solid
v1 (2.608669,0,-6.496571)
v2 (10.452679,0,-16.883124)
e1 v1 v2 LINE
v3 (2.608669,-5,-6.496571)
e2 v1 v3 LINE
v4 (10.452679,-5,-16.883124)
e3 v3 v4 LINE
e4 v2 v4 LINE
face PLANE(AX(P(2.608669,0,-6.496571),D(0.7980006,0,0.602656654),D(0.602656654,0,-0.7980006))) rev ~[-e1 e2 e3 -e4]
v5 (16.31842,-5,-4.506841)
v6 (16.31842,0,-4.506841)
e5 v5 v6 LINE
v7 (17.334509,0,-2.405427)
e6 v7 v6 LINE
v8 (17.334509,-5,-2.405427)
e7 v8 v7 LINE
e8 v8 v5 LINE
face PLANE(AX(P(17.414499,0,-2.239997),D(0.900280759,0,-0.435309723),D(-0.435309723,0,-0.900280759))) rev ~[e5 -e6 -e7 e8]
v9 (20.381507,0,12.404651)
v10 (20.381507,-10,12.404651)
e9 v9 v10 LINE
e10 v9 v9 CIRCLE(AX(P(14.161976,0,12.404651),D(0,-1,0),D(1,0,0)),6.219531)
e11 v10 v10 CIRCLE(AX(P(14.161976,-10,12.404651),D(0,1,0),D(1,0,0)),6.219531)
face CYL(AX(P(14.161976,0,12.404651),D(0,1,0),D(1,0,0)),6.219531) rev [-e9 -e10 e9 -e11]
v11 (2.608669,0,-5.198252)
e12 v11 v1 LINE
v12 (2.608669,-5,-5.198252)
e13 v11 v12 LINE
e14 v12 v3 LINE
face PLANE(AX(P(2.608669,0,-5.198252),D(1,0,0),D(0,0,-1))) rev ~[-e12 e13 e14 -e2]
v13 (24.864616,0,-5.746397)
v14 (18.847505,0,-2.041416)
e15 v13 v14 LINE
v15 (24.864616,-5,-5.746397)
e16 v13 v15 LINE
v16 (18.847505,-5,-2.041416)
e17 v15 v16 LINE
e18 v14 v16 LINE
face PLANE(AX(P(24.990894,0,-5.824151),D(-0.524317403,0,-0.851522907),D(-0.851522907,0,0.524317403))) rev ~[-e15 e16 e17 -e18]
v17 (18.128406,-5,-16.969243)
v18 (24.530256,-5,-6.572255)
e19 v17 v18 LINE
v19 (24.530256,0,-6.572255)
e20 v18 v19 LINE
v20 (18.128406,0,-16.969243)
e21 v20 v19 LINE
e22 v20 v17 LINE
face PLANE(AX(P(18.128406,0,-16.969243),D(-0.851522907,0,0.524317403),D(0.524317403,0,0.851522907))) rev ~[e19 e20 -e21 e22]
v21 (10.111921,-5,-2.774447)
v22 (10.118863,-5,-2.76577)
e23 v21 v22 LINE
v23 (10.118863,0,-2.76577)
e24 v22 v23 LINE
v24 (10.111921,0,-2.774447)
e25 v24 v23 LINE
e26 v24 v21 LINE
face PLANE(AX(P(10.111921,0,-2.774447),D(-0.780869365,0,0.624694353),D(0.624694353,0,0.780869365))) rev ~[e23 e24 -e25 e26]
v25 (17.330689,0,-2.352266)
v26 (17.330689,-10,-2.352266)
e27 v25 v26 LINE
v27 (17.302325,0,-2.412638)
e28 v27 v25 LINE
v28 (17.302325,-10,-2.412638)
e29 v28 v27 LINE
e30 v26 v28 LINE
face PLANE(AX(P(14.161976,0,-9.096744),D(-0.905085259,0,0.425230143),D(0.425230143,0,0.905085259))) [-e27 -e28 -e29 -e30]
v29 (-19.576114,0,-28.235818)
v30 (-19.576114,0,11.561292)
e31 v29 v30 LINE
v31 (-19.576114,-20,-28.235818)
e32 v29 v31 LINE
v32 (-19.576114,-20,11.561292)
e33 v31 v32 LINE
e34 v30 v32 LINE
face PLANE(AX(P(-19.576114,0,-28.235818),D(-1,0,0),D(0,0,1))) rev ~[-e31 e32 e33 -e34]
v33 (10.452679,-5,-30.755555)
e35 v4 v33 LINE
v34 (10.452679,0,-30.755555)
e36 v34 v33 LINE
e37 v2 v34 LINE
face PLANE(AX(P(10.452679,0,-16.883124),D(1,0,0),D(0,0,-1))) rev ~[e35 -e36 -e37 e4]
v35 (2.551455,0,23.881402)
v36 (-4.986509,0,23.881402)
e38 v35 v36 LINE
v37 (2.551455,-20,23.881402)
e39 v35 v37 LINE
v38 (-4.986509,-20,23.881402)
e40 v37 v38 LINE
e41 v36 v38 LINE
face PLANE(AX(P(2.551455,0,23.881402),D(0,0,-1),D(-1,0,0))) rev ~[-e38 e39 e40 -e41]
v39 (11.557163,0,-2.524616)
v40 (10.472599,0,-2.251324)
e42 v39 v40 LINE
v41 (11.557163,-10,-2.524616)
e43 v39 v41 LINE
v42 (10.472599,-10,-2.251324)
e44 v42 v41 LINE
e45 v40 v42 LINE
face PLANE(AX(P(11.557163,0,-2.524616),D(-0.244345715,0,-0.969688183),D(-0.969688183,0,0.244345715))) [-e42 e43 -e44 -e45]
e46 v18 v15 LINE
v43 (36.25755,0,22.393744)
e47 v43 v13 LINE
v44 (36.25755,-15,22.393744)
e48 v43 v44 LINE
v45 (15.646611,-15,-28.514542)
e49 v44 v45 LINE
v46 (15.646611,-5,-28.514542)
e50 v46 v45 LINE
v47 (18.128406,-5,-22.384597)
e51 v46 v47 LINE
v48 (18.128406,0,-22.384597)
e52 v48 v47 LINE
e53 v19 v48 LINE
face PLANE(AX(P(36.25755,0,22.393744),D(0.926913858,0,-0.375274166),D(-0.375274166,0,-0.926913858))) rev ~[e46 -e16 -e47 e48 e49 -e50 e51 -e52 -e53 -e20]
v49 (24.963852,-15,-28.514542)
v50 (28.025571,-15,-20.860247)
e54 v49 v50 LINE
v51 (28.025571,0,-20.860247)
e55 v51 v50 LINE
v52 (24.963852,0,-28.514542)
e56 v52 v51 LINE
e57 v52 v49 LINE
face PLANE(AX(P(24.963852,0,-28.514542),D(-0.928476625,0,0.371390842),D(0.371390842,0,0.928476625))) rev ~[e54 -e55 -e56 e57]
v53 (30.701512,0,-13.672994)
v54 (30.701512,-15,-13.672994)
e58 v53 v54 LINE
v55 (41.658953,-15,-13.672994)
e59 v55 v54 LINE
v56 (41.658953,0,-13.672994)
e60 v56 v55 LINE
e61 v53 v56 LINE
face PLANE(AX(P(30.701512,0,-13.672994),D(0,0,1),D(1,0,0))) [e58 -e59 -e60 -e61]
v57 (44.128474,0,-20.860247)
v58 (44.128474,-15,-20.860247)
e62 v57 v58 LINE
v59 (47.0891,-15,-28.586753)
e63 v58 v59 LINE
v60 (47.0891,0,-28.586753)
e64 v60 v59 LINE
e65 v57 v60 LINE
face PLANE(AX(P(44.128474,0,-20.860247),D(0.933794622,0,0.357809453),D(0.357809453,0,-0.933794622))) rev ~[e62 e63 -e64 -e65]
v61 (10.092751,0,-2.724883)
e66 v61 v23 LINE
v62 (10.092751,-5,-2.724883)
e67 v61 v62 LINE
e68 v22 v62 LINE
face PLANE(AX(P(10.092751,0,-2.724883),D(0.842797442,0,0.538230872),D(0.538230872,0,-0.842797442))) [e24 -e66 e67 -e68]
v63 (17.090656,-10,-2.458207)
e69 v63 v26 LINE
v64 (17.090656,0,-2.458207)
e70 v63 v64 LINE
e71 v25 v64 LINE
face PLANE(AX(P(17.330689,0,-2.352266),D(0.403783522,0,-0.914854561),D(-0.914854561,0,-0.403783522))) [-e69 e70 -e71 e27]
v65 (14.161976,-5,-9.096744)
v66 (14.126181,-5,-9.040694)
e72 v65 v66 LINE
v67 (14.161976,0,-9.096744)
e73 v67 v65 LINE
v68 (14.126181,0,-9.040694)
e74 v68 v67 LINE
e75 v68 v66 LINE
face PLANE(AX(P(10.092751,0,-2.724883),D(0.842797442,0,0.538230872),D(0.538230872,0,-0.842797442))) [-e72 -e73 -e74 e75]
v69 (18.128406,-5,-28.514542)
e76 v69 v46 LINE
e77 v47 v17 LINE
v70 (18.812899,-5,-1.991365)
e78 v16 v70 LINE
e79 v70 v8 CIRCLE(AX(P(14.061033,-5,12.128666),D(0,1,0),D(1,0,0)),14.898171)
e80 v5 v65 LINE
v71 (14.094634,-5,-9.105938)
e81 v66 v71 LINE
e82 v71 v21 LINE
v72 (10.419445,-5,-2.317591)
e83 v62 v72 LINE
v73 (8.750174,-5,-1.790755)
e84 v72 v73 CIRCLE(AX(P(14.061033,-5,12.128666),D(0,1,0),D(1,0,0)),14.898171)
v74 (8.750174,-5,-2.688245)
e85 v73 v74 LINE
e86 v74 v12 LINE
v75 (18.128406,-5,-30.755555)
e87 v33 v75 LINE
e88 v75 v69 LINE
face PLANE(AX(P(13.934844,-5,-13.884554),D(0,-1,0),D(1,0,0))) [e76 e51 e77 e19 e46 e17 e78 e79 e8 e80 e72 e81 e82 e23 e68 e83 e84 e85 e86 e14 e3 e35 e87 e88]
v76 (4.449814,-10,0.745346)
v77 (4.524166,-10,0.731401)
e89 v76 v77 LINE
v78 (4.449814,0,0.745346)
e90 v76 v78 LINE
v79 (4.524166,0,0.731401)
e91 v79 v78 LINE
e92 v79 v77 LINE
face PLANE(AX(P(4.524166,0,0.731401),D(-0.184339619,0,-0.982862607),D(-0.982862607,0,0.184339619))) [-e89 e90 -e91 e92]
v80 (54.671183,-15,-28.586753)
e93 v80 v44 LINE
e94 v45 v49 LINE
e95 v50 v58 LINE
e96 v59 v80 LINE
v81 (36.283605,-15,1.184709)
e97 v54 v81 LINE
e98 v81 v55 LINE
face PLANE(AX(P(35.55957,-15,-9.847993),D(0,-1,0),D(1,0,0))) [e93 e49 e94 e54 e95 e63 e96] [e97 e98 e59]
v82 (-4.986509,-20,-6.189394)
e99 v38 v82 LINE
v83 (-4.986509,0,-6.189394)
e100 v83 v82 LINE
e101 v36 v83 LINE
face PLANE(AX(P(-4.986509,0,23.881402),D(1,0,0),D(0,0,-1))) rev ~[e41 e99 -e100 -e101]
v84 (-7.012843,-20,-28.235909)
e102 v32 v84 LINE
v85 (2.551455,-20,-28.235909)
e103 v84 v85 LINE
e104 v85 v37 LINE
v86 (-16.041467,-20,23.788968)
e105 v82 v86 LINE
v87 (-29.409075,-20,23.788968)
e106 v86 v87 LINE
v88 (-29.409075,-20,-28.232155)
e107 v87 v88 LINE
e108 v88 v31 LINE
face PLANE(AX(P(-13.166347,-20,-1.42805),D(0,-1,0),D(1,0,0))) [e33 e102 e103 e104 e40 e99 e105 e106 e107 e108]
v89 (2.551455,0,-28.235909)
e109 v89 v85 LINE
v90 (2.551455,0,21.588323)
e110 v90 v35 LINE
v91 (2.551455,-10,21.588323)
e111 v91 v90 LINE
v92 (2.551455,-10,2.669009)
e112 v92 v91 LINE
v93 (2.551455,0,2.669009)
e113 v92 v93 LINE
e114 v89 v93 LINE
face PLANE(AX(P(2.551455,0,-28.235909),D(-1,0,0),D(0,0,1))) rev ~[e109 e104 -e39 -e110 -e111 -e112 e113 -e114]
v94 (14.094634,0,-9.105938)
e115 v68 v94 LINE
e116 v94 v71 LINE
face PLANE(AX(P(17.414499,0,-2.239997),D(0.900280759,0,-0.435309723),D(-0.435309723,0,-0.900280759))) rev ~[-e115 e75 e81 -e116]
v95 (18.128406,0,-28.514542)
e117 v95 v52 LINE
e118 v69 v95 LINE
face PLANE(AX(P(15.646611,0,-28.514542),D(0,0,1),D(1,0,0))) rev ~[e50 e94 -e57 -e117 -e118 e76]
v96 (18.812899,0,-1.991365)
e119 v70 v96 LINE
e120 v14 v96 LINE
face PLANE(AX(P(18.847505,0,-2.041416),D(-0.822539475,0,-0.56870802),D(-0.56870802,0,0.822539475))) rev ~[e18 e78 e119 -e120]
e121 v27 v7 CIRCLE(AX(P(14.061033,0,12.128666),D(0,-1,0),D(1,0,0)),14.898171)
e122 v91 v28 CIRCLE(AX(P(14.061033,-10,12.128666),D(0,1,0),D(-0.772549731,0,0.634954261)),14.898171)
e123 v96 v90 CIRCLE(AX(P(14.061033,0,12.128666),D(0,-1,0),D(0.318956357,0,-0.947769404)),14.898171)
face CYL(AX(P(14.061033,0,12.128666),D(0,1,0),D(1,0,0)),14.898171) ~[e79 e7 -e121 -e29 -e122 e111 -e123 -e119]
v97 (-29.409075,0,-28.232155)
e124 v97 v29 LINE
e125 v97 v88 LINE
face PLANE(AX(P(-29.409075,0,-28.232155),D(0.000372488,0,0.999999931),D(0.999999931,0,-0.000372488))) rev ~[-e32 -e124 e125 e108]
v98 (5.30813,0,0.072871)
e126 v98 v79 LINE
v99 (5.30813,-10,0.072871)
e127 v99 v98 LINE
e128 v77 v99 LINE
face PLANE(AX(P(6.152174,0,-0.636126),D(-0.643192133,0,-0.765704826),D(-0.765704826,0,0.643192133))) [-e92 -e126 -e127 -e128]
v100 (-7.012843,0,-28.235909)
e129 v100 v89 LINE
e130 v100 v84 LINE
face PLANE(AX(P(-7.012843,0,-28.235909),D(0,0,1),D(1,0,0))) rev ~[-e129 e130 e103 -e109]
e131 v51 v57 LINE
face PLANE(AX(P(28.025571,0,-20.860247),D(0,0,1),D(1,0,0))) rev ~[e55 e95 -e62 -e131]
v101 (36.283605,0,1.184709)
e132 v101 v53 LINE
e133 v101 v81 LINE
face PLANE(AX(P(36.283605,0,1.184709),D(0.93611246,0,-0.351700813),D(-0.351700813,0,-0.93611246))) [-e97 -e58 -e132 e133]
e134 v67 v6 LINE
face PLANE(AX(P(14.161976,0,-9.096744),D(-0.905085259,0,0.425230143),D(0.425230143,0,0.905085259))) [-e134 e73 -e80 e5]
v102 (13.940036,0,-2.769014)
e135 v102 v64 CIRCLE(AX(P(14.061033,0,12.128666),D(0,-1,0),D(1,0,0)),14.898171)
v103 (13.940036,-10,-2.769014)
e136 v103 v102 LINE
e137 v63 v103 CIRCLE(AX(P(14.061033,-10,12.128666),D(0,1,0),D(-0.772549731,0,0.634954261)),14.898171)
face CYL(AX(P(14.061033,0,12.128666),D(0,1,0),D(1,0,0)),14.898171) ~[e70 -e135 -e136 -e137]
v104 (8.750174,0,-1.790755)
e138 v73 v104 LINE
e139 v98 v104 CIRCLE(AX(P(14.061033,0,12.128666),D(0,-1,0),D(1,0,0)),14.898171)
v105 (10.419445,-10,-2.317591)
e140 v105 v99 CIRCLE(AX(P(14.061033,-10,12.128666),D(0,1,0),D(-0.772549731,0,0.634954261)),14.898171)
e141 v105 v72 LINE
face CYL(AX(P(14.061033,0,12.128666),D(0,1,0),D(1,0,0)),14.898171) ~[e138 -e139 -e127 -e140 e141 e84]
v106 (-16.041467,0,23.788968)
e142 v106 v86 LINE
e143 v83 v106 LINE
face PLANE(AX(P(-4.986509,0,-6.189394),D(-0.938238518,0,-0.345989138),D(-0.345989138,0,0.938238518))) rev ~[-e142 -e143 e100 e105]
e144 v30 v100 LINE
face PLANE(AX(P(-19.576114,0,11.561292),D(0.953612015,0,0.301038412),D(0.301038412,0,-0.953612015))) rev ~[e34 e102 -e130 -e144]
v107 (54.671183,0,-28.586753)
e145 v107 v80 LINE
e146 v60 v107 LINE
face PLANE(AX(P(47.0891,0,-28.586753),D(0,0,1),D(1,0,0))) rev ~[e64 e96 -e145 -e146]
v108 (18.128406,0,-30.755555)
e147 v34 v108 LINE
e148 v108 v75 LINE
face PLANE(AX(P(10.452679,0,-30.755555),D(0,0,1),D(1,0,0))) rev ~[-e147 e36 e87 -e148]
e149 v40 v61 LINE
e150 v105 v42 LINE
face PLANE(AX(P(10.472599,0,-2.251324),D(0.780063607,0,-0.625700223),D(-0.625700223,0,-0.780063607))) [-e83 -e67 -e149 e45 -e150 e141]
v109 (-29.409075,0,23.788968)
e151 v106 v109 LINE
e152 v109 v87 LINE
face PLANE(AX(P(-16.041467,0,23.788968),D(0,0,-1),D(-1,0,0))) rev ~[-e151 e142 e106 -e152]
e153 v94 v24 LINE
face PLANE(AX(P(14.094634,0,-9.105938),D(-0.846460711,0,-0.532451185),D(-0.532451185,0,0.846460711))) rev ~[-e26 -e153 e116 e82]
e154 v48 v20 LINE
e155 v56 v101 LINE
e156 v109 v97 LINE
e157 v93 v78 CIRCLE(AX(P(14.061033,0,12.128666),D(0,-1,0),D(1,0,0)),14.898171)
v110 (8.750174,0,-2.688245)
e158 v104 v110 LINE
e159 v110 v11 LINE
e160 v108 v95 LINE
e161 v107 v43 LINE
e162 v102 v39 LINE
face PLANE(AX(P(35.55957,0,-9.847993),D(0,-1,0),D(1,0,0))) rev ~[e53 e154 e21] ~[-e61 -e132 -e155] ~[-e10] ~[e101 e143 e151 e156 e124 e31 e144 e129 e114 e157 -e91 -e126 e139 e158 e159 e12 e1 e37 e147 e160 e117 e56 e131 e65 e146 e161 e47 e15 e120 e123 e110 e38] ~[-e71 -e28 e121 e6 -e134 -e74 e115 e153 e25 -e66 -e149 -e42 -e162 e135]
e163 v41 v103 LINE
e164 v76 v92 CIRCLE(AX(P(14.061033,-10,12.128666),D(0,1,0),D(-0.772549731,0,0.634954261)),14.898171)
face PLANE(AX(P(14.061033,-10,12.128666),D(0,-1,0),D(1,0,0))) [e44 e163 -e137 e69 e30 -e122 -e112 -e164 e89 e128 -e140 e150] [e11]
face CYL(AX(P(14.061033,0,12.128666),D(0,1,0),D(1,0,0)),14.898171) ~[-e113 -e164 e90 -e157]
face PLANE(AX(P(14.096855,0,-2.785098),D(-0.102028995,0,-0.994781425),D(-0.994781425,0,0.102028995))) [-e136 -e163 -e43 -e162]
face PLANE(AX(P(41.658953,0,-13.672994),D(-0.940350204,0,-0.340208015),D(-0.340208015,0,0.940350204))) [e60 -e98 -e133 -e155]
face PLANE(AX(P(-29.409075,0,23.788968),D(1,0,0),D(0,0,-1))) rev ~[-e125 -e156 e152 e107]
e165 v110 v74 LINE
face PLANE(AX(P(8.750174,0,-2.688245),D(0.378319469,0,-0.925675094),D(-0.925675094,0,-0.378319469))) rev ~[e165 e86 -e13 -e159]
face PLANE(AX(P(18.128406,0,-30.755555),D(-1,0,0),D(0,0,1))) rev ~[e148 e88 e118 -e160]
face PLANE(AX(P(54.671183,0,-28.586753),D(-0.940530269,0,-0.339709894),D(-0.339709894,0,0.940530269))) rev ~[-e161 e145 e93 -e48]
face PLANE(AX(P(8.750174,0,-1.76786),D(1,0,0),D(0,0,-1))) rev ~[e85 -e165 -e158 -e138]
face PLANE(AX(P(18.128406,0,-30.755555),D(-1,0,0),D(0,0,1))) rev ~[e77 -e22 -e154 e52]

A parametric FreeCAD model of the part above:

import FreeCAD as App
import Part
import Sketcher
Q = App.Units.Quantity


def add_polygon(sketch, points):
    """Adds a closed chain of lines whose ends are joined by coincident constraints."""
    first, n = sketch.GeometryCount, len(points)
    for a, b in zip(points, points[1:] + points[:1]):
        sketch.addGeometry(Part.LineSegment(App.Vector(*a, 0), App.Vector(*b, 0)), False)
    for i in range(n):
        sketch.addConstraint(Sketcher.Constraint("Coincident", first + i, 2, first + (i + 1) % n, 1))

doc = App.newDocument("Part")
params = doc.addObject("Spreadsheet::Sheet", "Params")
for row, (alias, value) in enumerate([
    ("pad1_length", "20 mm"),
    ("pad2_length", "5 mm"),
    ("pad3_length", "10 mm"),
    ("pad4_length", "15 mm"),
], start=1):
    params.set(f"A{row}", alias)
    params.set(f"B{row}", "=" + value)
    params.setAlias(f"B{row}", alias)

body = doc.addObject("PartDesign::Body", "Body")

# Sketch on XZ plane
sketch1 = body.newObject("Sketcher::SketchObject", "Sketch")
sketch1.AttachmentSupport = (doc.getObject("XZ_Plane"), [""])
sketch1.MapMode = "FlatFace"
add_polygon(sketch1, [(-29, 24), (-29, -28), (-20, -28), (-20, 12), (-7, -28), (3, -28), (3, 24), (-5, 24), (-5, -6), (-16, 24)])  # lines 0-9
sketch1.addConstraint([
    Sketcher.Constraint("Vertical", 0),
    Sketcher.Constraint("Vertical", 2),
    Sketcher.Constraint("Horizontal", 4),
    Sketcher.Constraint("Vertical", 5),
    Sketcher.Constraint("Horizontal", 6),
    Sketcher.Constraint("Vertical", 7),
    Sketcher.Constraint("Horizontal", 9),
    Sketcher.Constraint("Angle", 3, Q("-72.480017 deg")),
    Sketcher.Constraint("DistanceX", 9, 2, 9, 1, 13.367608),
    Sketcher.Constraint("DistanceY", 2, 1, 2, 2, 39.79711),
    Sketcher.Constraint("DistanceY", 5, 1, 5, 2, 52.11731),
    Sketcher.Constraint("DistanceY", -1, 1, 5, 2, 23.881402),
    Sketcher.Constraint("DistanceY", 3, 2, 2, 2, 39.797201),
    Sketcher.Constraint("Distance", 8, 31.951749),
    Sketcher.Constraint("DistanceX", 4, 1, 4, 2, 9.564298),
    Sketcher.Constraint("DistanceX", 6, 2, 6, 1, 7.537964),
    Sketcher.Constraint("DistanceY", 0, 2, 0, 1, 52.021123),
    Sketcher.Constraint("DistanceY", 7, 2, 7, 1, 30.070796),
    Sketcher.Constraint("DistanceX", 6, 2, -1, 1, 4.986509),
    Sketcher.Constraint("DistanceY", -1, 1, 8, 2, 23.788968),
])
pad1 = body.newObject("PartDesign::Pad", "Pad")
pad1.Profile = sketch1
pad1.setExpression("Length", "Params.pad1_length")
body2 = doc.addObject("PartDesign::Body", "Body001")

# Sketch on XZ plane
sketch2 = body2.newObject("Sketcher::SketchObject", "Sketch001")
sketch2.AttachmentSupport = (doc.getObject("XZ_Plane001"), [""])
sketch2.MapMode = "FlatFace"
add_polygon(sketch2, [(10.52, -2.26), (8.75, -1.77), (8.75, -2.69), (2.61, -5.2), (2.61, -6.5), (10.45, -16.88), (10.45, -30.76), (18.13, -30.76), (18.13, -16.97), (24.99, -5.82), (18.85, -2.04), (18.25, -1.18), (17.19, -1.91), (17.41, -2.24), (14.09, -9.11), (10.11, -2.77)])  # lines 0-15
sketch2.addConstraint([
    Sketcher.Constraint("Vertical", 1),
    Sketcher.Constraint("Vertical", 3),
    Sketcher.Constraint("Vertical", 5),
    Sketcher.Constraint("Horizontal", 6),
    Sketcher.Constraint("Vertical", 7),
    Sketcher.Constraint("Perpendicular", 8, 9),
    Sketcher.Constraint("Perpendicular", 10, 11),
    Sketcher.Constraint("Perpendicular", 11, 12),
    Sketcher.Constraint("Distance", 0, 1.838399),
    Sketcher.Constraint("DistanceY", 3, 2, 3, 1, 1.298319),
    Sketcher.Constraint("DistanceY", 5, 2, 5, 1, 13.872432),
    Sketcher.Constraint("DistanceX", -1, 1, 12, 2, 17.414499),
    Sketcher.Constraint("DistanceY", 8, 2, 2, 2, 0.625899),
    Sketcher.Constraint("DistanceX", 7, 2, 9, 2, 0.719098),
    Sketcher.Constraint("DistanceY", 14, 2, 1, 2, 0.086202),
    Sketcher.Constraint("Distance", 4, 13.01572),
    Sketcher.Constraint("Distance", 9, 7.214591),
    Sketcher.Constraint("Distance", 10, 1.049909),
    Sketcher.Constraint("Distance", 11, 1.291639),
    Sketcher.Constraint("Distance", 12, 0.398288),
    Sketcher.Constraint("Distance", 14, 7.479958),
    Sketcher.Constraint("DistanceX", 6, 1, 6, 2, 7.675727),
    Sketcher.Constraint("DistanceY", 1, 2, 1, 1, 0.920385),
    Sketcher.Constraint("DistanceY", 7, 1, 7, 2, 13.786312),
    Sketcher.Constraint("DistanceY", 0, 2, -1, 1, 1.76786),
    Sketcher.Constraint("DistanceX", -1, 1, 2, 2, 2.608669),
    Sketcher.Constraint("DistanceY", 3, 2, -1, 1, 6.496571),
    Sketcher.Constraint("DistanceX", -1, 1, 4, 2, 10.452679),
    Sketcher.Constraint("DistanceX", -1, 1, 14, 2, 10.111921),
    Sketcher.Constraint("DistanceX", 1, 2, 8, 2, 16.24072),
    Sketcher.Constraint("DistanceY", 13, 2, 12, 2, 6.865941),
    Sketcher.Constraint("DistanceX", 1, 2, 15, 2, 1.77023),
])
pad2 = body2.newObject("PartDesign::Pad", "Pad001")
pad2.Profile = sketch2
pad2.setExpression("Length", "Params.pad2_length")
body.AllowCompound = True
doc.recompute()

boolean = body.newObject("PartDesign::Boolean", "Boolean")
boolean.Type = "Fuse"
boolean.addObjects([body2])

# Sketch on XZ plane
sketch3 = body.newObject("Sketcher::SketchObject", "Sketch002")
sketch3.AttachmentSupport = (doc.getObject("XZ_Plane"), [""])
sketch3.MapMode = "FlatFace"
sketch3.addGeometry(Part.Circle(App.Vector(14, 12, 0), App.Vector(0, 0, 1), 15), False)
sketch3.addConstraint([
    Sketcher.Constraint("Diameter", 0, 29.796342),
    Sketcher.Constraint("DistanceX", -1, 1, 0, 3, 14.061033),
    Sketcher.Constraint("DistanceY", -1, 1, 0, 3, 12.128666),
])
pad3 = body.newObject("PartDesign::Pad", "Pad002")
pad3.Profile = sketch3
pad3.setExpression("Length", "Params.pad3_length")

# Sketch on XZ plane
sketch4 = body.newObject("Sketcher::SketchObject", "Sketch003")
sketch4.AttachmentSupport = (doc.getObject("XZ_Plane"), [""])
sketch4.MapMode = "FlatFace"
add_polygon(sketch4, [(55, -29), (36, 22), (16, -29), (25, -29), (28, -21), (44, -21), (47, -29)])  # lines 0-6
sketch4.addConstraint([
    Sketcher.Constraint("Horizontal", 2),
    Sketcher.Constraint("Horizontal", 4),
    Sketcher.Constraint("Horizontal", 6),
    Sketcher.Constraint("DistanceX", 2, 1, 2, 2, 9.31724),
    Sketcher.Constraint("DistanceX", -1, 1, 5, 2, 47.0891),
    Sketcher.Constraint("DistanceX", 2, 2, 0, 2, 11.293698),
    Sketcher.Constraint("Distance", 1, 54.922349),
    Sketcher.Constraint("Distance", 5, 8.274309),
    Sketcher.Constraint("DistanceX", 4, 1, 4, 2, 16.102903),
    Sketcher.Constraint("DistanceX", 6, 1, 6, 2, 7.582083),
    Sketcher.Constraint("DistanceX", -1, 1, 0, 2, 36.25755),
    Sketcher.Constraint("DistanceY", 1, 2, -1, 1, 28.514542),
    Sketcher.Constraint("DistanceX", -1, 1, 3, 2, 28.025571),
    Sketcher.Constraint("DistanceY", 3, 2, 0, 2, 43.253992),
])
pad4 = body.newObject("PartDesign::Pad", "Pad003")
pad4.Profile = sketch4
pad4.setExpression("Length", "Params.pad4_length")

# Sketch on XZ plane
sketch5 = body.newObject("Sketcher::SketchObject", "Sketch004")
sketch5.AttachmentSupport = (doc.getObject("XZ_Plane"), [""])
sketch5.MapMode = "FlatFace"
add_polygon(sketch5, [(10.47, -2.25), (10.09, -2.72), (14.16, -9.1), (17.33, -2.35), (16.35, -2.79), (14.1, -2.79), (11.56, -2.52)])  # lines 0-6
sketch5.addGeometry(Part.Circle(App.Vector(14.16, 12.4, 0), App.Vector(0, 0, 1), 6.22), False)  # 7
add_polygon(sketch5, [(4.52, 0.73), (4.26, 0.78), (4.26, -4.42), (8.73, -2.63), (8.73, -1.81), (7.98, -1.61), (6.15, -0.64)])  # lines 8-14
add_polygon(sketch5, [(30.7, -13.67), (41.66, -13.67), (36.28, 1.18)])  # lines 15-17
sketch5.addConstraint([
    Sketcher.Constraint("Horizontal", 4),
    Sketcher.Constraint("Vertical", 9),
    Sketcher.Constraint("Vertical", 11),
    Sketcher.Constraint("Horizontal", 15),
    Sketcher.Constraint("Vertical", 7, 3, 1, 2),
    Sketcher.Constraint("Diameter", 7, 12.439062),
    Sketcher.Constraint("DistanceX", 15, 1, 15, 2, 10.95744),
    Sketcher.Constraint("DistanceY", 11, 1, 11, 2, 0.825969),
    Sketcher.Constraint("DistanceX", -1, 1, 6, 2, 10.472599),
    Sketcher.Constraint("DistanceY", -1, 1, 14, 2, 0.731401),
    Sketcher.Constraint("DistanceX", 8, 2, 14, 2, 0.263599),
    Sketcher.Constraint("Distance", 1, 7.560372),
    Sketcher.Constraint("Distance", 2, 7.451761),
    Sketcher.Constraint("Distance", 3, 1.071941),
    Sketcher.Constraint("Distance", 12, 0.781449),
    Sketcher.Constraint("Distance", 13, 2.068532),
    Sketcher.Constraint("Distance", 16, 15.80018),
    Sketcher.Constraint("DistanceX", 4, 2, 4, 1, 2.253164),
    Sketcher.Constraint("DistanceY", 9, 2, 9, 1, 5.205785),
    Sketcher.Constraint("DistanceY", -1, 1, 7, 3, 12.404651),
    Sketcher.Constraint("DistanceX", -1, 1, 0, 2, 10.092751),
    Sketcher.Constraint("DistanceX", -1, 1, 2, 2, 17.330689),
    Sketcher.Constraint("DistanceX", -1, 1, 3, 2, 16.35002),
    Sketcher.Constraint("DistanceY", -1, 1, 8, 2, 0.78084),
    Sketcher.Constraint("DistanceX", -1, 1, 10, 2, 8.732319),
    Sketcher.Constraint("DistanceY", 10, 2, -1, 1, 2.633718),
    Sketcher.Constraint("DistanceY", 12, 2, -1, 1, 1.612931),
    Sketcher.Constraint("DistanceY", -1, 1, 16, 2, 1.184709),
    Sketcher.Constraint("DistanceY", 1, 2, 0, 2, 6.371862),
    Sketcher.Constraint("DistanceY", 3, 2, 7, 3, 15.189749),
    Sketcher.Constraint("DistanceY", 4, 2, 5, 2, 0.260482),
    Sketcher.Constraint("DistanceY", 0, 2, 6, 2, 0.473559),
    Sketcher.Constraint("DistanceX", 8, 2, 4, 2, 9.836288),
    Sketcher.Constraint("DistanceX", 12, 2, 5, 2, 3.581619),
    Sketcher.Constraint("DistanceX", 13, 2, 12, 2, 1.823369),
    Sketcher.Constraint("DistanceY", 15, 2, 1, 2, 4.576249),
    Sketcher.Constraint("DistanceX", 5, 2, 15, 2, 30.10179),
])
pocket1 = body.newObject("PartDesign::Pocket", "Pocket")
pocket1.Profile = sketch5
pocket1.Type = "ThroughAll"
pocket1.Reversed = True

doc.recompute()
